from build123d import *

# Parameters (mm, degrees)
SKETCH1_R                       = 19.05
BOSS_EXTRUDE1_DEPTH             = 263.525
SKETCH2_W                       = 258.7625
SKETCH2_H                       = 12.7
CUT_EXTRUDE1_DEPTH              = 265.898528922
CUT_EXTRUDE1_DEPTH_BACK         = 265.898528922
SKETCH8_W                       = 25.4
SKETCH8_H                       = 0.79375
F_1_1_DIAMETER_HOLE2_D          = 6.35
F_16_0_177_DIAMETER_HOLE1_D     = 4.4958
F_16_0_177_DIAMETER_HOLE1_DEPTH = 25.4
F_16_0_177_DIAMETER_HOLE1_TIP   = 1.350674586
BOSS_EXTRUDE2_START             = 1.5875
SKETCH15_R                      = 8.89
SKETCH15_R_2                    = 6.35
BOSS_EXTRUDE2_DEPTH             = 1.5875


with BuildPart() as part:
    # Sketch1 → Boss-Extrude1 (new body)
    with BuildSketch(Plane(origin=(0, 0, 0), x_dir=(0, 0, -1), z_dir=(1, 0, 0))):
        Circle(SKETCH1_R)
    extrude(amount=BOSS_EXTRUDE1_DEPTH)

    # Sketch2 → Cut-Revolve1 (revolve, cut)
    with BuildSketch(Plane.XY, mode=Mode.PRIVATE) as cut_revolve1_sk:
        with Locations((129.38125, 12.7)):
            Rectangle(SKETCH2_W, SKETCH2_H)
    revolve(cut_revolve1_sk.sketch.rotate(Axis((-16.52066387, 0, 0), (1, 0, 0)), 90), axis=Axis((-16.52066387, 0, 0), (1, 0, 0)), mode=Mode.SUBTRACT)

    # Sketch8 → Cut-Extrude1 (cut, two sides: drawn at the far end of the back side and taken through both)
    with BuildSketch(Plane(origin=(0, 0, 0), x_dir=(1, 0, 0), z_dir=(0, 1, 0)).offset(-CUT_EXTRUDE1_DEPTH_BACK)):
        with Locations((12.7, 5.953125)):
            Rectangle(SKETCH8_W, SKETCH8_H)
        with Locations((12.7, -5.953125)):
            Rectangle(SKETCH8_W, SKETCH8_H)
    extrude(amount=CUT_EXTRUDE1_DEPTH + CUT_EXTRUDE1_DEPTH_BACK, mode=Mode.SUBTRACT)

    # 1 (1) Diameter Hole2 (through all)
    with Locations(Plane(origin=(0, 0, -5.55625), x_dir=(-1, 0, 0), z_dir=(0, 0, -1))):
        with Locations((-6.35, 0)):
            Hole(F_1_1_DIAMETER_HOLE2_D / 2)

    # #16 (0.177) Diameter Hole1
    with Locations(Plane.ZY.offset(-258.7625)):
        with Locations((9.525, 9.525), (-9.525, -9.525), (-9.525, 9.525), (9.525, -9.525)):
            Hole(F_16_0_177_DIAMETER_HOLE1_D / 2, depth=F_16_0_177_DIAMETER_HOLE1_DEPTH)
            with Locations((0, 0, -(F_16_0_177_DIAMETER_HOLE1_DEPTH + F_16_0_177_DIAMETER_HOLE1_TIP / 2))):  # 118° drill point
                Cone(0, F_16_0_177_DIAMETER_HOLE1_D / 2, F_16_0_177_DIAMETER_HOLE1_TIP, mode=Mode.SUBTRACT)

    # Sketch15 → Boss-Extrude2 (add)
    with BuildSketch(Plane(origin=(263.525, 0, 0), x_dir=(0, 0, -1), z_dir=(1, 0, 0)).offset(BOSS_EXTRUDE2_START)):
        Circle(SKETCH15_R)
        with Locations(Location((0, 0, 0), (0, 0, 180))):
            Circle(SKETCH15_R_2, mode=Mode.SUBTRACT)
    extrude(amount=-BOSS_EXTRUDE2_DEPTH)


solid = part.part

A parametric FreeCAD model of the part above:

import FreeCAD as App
import Part
import Sketcher

V = App.Vector
Q = App.Units.Quantity

doc = App.newDocument("Part")
body = doc.addObject("PartDesign::Body", "Body")

# Sketch on YZ plane
sketch1 = body.newObject("Sketcher::SketchObject", "Sketch")
sketch1.AttachmentSupport = (doc.getObject("YZ_Plane"), [""])
sketch1.MapMode = "FlatFace"
sketch1.addGeometry(Part.Circle(V(0, 0, 0), V(0, 0, 1), 19.05), False)
sketch1.addConstraint([
    Sketcher.Constraint("Coincident", 0, 3, -1, 1),
    Sketcher.Constraint("Diameter", 0, Q("1.5 in")),
])
pad1 = body.newObject("PartDesign::Pad", "Pad")
pad1.Profile = sketch1
pad1.Length = Q("10.375 in")

# Sketch on XY plane
sketch2 = body.newObject("Sketcher::SketchObject", "Sketch001")
sketch2.AttachmentSupport = (doc.getObject("XY_Plane"), [""])
sketch2.MapMode = "FlatFace"
sketch2.addGeometry([
    Part.LineSegment(V(0, 19.05, 0), V(0, 6.35, 0)),
    Part.LineSegment(V(0, 6.35, 0), V(258.7625, 6.35, 0)),
    Part.LineSegment(V(258.7625, 6.35, 0), V(258.7625, 19.05, 0)),
    Part.LineSegment(V(258.7625, 19.05, 0), V(0, 19.05, 0)),
], False)
sketch2.addConstraint([
    Sketcher.Constraint("Coincident", 0, 2, 1, 1),
    Sketcher.Constraint("Coincident", 1, 2, 2, 1),
    Sketcher.Constraint("Coincident", 2, 2, 3, 1),
    Sketcher.Constraint("Coincident", 3, 2, 0, 1),
    Sketcher.Constraint("Vertical", 0),
    Sketcher.Constraint("Horizontal", 1),
    Sketcher.Constraint("Vertical", 2),
    Sketcher.Constraint("Horizontal", 3),
    Sketcher.Constraint("PointOnObject", 0, 2, -2),
    Sketcher.Constraint("DistanceY", 0, 2, 0, 1, Q("0.5 in")),
    Sketcher.Constraint("DistanceX", 1, 1, 1, 2, Q("10.1875 in")),
    Sketcher.Constraint("DistanceY", -1, 1, 0, 2, Q("0.25 in")),
])
groove = body.newObject("PartDesign::Groove", "Groove")
groove.Profile = sketch2
groove.ReferenceAxis = (sketch2, ["H_Axis"])
groove.Angle = 360

# Sketch on XZ plane
sketch3 = body.newObject("Sketcher::SketchObject", "Sketch002")
sketch3.AttachmentSupport = (doc.getObject("XZ_Plane"), [""])
sketch3.MapMode = "FlatFace"
sketch3.addGeometry([
    Part.LineSegment(V(0, -6.35, 0), V(0, -5.55625, 0)),  # 0
    Part.LineSegment(V(0, -5.55625, 0), V(25.4, -5.55625, 0)),  # 1
    Part.LineSegment(V(25.4, -5.55625, 0), V(25.4, -6.35, 0)),  # 2
    Part.LineSegment(V(25.4, -6.35, 0), V(0, -6.35, 0)),  # 3
    Part.LineSegment(V(0, 5.55625, 0), V(0, 6.35, 0)),  # 4
    Part.LineSegment(V(0, 6.35, 0), V(25.4, 6.35, 0)),  # 5
    Part.LineSegment(V(25.4, 6.35, 0), V(25.4, 5.55625, 0)),  # 6
    Part.LineSegment(V(25.4, 5.55625, 0), V(0, 5.55625, 0)),  # 7
], False)
sketch3.addConstraint([
    Sketcher.Constraint("Coincident", 0, 2, 1, 1),
    Sketcher.Constraint("Coincident", 1, 2, 2, 1),
    Sketcher.Constraint("Coincident", 2, 2, 3, 1),
    Sketcher.Constraint("Coincident", 3, 2, 0, 1),
    Sketcher.Constraint("Coincident", 4, 2, 5, 1),
    Sketcher.Constraint("Coincident", 5, 2, 6, 1),
    Sketcher.Constraint("Coincident", 6, 2, 7, 1),
    Sketcher.Constraint("Coincident", 7, 2, 4, 1),
    Sketcher.Constraint("Vertical", 0),
    Sketcher.Constraint("Horizontal", 1),
    Sketcher.Constraint("Vertical", 2),
    Sketcher.Constraint("Horizontal", 3),
    Sketcher.Constraint("Vertical", 4),
    Sketcher.Constraint("Horizontal", 5),
    Sketcher.Constraint("Vertical", 6),
    Sketcher.Constraint("Horizontal", 7),
    Sketcher.Constraint("Symmetric", 3, 2, 4, 2, -1, 1),
    Sketcher.Constraint("Symmetric", 1, 2, 6, 2, -1),
    Sketcher.Constraint("PointOnObject", 0, 2, -2),
    Sketcher.Constraint("DistanceX", 1, 1, 1, 2, Q("1 in")),
    Sketcher.Constraint("DistanceY", 3, 2, 4, 2, Q("0.5 in")),
    Sketcher.Constraint("DistanceY", 0, 1, 0, 2, Q("0.03125 in")),
])
pocket1 = body.newObject("PartDesign::Pocket", "Pocket")
pocket1.Profile = sketch3
pocket1.Type = "ThroughAll"
pocket1.Midplane = True

# Sketch on XY plane
sketch4 = body.newObject("Sketcher::SketchObject", "Sketch003")
sketch4.AttachmentSupport = (doc.getObject("XY_Plane"), [""])
sketch4.MapMode = "FlatFace"
sketch4.AttachmentOffset = App.Placement(V(0, 0, -0.21875 * 25.4), App.Rotation())
sketch4.addGeometry(Part.Circle(V(6.35, 0, 0), V(0, 0, 1), 3.175), False)
sketch4.addConstraint([
    Sketcher.Constraint("PointOnObject", 0, 3, -1),
    Sketcher.Constraint("Diameter", 0, Q("0.25 in")),
    Sketcher.Constraint("DistanceX", -1, 1, 0, 3, Q("0.25 in")),
])
doc.recompute()
hole = body.newObject("PartDesign::Hole", "Hole")
hole.Profile = sketch4
hole.ThreadType = "None"
hole.Diameter = Q("0.25 in")
hole.DepthType = "ThroughAll"
hole.Reversed = True

# Sketch on YZ plane
sketch5 = body.newObject("Sketcher::SketchObject", "Sketch004")
sketch5.AttachmentSupport = (doc.getObject("YZ_Plane"), [""])
sketch5.MapMode = "FlatFace"
sketch5.AttachmentOffset = App.Placement(V(0, 0, 10.1875 * 25.4), App.Rotation())
sketch5.addGeometry([
    Part.Circle(V(9.525, 9.525, 0), V(0, 0, 1), 2.2479),
    Part.Circle(V(-9.525, -9.525, 0), V(0, 0, 1), 2.2479),
    Part.Circle(V(9.525, -9.525, 0), V(0, 0, 1), 2.2479),
    Part.Circle(V(-9.525, 9.525, 0), V(0, 0, 1), 2.2479),
], False)
sketch5.addConstraint([
    Sketcher.Constraint("Equal", 0, 1),
    Sketcher.Constraint("Equal", 1, 2),
    Sketcher.Constraint("Equal", 2, 3),
    Sketcher.Constraint("Symmetric", 0, 3, 1, 3, -1, 1),
    Sketcher.Constraint("Symmetric", 2, 3, 3, 3, -1, 1),
    Sketcher.Constraint("Symmetric", 1, 3, 2, 3, -2),
    Sketcher.Constraint("Diameter", 0, Q("0.177 in")),
    Sketcher.Constraint("DistanceX", 1, 3, 0, 3, Q("0.75 in")),
    Sketcher.Constraint("DistanceY", 1, 3, 0, 3, Q("0.75 in")),
])
doc.recompute()
hole2 = body.newObject("PartDesign::Hole", "Hole001")
hole2.Profile = sketch5
hole2.ThreadType = "None"
hole2.Diameter = Q("0.177 in")
hole2.DepthType = "Dimension"
hole2.Depth = Q("1 in")
hole2.DrillPoint = "Angled"
hole2.DrillPointAngle = 118
hole2.Reversed = True

# Sketch on YZ plane
sketch6 = body.newObject("Sketcher::SketchObject", "Sketch005")
sketch6.AttachmentSupport = (doc.getObject("YZ_Plane"), [""])
sketch6.MapMode = "FlatFace"
sketch6.AttachmentOffset = App.Placement(V(0, 0, 10.4375 * 25.4), App.Rotation())
sketch6.addGeometry([
    Part.Circle(V(0, 0, 0), V(0, 0, 1), 8.89),
    Part.Circle(V(0, 0, 0), V(0, 0, 1), 6.35),
], False)
sketch6.addConstraint([
    Sketcher.Constraint("Coincident", 0, 3, -1, 1),
    Sketcher.Constraint("Coincident", 1, 3, -1, 1),
    Sketcher.Constraint("Diameter", 0, Q("0.7 in")),
    Sketcher.Constraint("Diameter", 1, Q("0.5 in")),
])
pad2 = body.newObject("PartDesign::Pad", "Pad001")
pad2.Profile = sketch6
pad2.Length = Q("0.0625 in")
pad2.Reversed = True

doc.recompute()
